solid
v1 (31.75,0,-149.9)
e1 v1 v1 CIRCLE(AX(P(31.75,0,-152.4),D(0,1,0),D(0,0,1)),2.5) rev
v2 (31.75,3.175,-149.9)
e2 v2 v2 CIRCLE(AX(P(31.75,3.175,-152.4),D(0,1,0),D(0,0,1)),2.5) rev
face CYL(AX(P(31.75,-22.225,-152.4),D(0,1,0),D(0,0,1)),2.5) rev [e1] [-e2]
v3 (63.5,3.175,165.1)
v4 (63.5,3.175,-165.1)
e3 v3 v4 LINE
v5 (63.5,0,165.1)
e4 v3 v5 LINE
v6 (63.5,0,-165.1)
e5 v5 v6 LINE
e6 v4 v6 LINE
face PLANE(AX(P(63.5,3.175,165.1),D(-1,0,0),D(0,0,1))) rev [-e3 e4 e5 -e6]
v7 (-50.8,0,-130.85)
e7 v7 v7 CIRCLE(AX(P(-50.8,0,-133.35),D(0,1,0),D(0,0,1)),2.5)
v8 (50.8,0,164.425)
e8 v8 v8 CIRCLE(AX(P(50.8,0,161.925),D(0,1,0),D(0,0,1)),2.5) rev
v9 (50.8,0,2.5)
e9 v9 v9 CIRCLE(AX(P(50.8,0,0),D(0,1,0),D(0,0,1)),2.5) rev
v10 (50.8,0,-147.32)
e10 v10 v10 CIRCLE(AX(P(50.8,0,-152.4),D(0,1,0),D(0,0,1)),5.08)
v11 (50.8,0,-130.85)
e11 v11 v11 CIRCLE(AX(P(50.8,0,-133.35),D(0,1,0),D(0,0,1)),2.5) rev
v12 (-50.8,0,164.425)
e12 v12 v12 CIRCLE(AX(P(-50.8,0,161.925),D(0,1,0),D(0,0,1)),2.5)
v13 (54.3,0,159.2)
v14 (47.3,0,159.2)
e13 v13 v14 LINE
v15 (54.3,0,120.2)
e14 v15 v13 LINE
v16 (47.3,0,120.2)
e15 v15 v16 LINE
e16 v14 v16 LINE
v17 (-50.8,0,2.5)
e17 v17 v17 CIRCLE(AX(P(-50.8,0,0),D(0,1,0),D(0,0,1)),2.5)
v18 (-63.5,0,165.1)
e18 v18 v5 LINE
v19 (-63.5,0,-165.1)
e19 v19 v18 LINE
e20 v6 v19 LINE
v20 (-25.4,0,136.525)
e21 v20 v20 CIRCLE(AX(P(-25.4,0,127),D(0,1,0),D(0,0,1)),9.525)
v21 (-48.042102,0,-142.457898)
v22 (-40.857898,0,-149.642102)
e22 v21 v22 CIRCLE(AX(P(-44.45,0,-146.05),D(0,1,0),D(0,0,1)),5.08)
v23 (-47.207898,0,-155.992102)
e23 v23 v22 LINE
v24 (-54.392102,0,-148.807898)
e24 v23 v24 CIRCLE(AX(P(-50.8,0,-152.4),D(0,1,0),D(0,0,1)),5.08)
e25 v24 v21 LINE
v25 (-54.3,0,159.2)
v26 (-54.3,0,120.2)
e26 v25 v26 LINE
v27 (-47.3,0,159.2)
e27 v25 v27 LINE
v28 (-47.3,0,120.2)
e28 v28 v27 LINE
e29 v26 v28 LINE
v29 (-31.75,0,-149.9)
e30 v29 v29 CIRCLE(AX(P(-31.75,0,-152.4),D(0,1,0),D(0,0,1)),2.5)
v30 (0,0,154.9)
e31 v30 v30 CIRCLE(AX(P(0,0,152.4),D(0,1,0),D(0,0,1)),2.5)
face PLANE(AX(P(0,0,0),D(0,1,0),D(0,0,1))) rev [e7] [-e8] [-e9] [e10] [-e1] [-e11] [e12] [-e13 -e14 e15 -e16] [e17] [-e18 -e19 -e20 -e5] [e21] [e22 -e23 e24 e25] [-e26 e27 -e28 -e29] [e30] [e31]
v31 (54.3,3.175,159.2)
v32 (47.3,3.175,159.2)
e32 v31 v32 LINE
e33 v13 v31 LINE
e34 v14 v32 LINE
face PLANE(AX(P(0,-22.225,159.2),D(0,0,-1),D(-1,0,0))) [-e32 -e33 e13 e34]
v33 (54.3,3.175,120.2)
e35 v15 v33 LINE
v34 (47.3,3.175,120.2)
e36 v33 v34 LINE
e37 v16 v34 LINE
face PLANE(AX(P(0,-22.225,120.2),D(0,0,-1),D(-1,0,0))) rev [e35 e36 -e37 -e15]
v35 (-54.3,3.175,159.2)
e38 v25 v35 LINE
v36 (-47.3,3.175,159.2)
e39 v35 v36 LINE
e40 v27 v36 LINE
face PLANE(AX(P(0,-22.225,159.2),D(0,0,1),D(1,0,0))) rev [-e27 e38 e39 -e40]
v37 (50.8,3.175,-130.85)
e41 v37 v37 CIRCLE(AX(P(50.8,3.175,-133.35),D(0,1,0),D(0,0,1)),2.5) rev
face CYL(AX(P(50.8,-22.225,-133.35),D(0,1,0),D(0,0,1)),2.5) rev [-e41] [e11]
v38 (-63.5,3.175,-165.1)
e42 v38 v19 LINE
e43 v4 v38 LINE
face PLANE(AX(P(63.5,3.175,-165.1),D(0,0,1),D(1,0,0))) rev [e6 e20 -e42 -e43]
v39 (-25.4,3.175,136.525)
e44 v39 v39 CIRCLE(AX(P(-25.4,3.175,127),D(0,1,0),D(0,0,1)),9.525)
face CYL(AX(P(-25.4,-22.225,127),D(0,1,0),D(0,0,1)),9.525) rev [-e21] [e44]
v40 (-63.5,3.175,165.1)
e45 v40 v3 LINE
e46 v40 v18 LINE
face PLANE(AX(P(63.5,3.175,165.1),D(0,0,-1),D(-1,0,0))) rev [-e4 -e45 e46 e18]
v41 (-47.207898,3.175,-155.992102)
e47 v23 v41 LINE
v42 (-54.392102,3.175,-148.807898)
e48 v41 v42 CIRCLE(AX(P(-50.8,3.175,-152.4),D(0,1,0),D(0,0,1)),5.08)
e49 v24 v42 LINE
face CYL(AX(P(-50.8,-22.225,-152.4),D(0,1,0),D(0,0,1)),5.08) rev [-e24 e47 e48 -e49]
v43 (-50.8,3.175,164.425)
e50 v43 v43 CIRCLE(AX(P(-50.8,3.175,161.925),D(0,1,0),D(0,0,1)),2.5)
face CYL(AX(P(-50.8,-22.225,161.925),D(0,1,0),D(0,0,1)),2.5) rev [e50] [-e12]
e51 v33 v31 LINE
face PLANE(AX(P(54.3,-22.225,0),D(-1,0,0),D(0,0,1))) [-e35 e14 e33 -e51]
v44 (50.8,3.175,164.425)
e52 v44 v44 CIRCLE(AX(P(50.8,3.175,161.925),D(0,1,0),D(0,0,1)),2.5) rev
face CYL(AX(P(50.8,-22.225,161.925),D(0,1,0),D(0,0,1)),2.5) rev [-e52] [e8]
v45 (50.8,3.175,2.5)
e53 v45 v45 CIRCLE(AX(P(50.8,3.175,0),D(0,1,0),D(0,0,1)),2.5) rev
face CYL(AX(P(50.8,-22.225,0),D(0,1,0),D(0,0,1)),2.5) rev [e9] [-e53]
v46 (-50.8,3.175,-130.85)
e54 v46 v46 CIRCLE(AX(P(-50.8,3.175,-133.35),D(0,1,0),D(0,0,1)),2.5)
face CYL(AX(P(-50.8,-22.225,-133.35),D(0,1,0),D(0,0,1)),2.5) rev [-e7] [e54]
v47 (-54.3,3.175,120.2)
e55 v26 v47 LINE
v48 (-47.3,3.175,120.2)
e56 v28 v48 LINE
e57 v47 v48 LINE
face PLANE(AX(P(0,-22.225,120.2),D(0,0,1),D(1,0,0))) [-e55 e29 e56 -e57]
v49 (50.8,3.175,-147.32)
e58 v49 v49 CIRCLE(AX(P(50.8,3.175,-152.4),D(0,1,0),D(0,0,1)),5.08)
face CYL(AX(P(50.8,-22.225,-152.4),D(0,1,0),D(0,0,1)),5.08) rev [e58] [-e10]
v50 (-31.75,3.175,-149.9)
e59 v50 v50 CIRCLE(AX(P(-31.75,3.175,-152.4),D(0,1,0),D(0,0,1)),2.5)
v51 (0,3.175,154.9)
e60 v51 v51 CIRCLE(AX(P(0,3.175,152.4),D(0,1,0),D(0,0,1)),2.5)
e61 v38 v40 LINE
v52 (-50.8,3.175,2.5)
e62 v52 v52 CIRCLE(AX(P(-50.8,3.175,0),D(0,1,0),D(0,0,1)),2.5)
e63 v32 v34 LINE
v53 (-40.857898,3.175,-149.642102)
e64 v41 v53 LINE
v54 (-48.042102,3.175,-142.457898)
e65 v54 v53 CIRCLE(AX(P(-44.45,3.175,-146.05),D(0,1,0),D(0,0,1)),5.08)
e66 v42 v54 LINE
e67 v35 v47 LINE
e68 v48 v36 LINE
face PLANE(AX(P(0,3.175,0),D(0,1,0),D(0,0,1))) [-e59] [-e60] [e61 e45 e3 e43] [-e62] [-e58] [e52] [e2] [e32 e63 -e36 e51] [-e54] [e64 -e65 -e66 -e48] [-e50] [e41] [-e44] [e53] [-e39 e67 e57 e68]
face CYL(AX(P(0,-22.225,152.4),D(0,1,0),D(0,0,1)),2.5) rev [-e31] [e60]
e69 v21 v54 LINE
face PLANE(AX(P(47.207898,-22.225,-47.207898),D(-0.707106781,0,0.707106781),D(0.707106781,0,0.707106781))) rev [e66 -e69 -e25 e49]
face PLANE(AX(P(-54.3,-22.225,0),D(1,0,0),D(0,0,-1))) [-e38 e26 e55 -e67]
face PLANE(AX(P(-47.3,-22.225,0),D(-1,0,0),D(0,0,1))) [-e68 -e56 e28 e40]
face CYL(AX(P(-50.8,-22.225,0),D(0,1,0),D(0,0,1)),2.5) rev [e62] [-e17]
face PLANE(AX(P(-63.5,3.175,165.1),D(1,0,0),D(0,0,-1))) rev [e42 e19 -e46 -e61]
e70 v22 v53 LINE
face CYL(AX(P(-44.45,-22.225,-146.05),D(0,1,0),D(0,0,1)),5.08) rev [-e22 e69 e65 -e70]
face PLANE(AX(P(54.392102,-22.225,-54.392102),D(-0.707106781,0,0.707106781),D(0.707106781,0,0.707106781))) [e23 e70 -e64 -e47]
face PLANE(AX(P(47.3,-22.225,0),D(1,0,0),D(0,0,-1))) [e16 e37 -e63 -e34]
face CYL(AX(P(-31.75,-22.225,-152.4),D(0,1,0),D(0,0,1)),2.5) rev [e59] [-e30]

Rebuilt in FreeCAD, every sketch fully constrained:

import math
import FreeCAD as App
import Part
import Sketcher
from FreeCAD import Vector
Q = App.Units.Quantity


def add_polygon(sketch, points):
    """Adds a closed chain of lines whose ends are joined by coincident constraints."""
    first, n = sketch.GeometryCount, len(points)
    for a, b in zip(points, points[1:] + points[:1]):
        sketch.addGeometry(Part.LineSegment(App.Vector(*a, 0), App.Vector(*b, 0)), False)
    for i in range(n):
        sketch.addConstraint(Sketcher.Constraint("Coincident", first + i, 2, first + (i + 1) % n, 1))

doc = App.newDocument("Part")
params = doc.addObject("Spreadsheet::Sheet", "Params")
for row, (alias, value) in enumerate([
    ("sketch1_width", "5 in"),
    ("sketch1_height", "13 in"),
    ("pad1_length", "0.125 in"),
    ("sketch2_diameter", "0.4 in"),
    ("pocket1_length", "1 in"),
    ("sketch3_diameter", "0.75 in"),
    ("pocket2_length", "1 in"),
], start=1):
    params.set(f"A{row}", alias)
    params.set(f"B{row}", "=" + value)
    params.setAlias(f"B{row}", alias)

body = doc.addObject("PartDesign::Body", "Body")

# Sketch on XZ plane
sketch1 = body.newObject("Sketcher::SketchObject", "Sketch")
sketch1.AttachmentSupport = (doc.getObject("XZ_Plane"), [""])
sketch1.MapMode = "FlatFace"
add_polygon(sketch1, [(-63.5, -165.1), (-63.5, 165.1), (63.5, 165.1), (63.5, -165.1)])  # lines 0-3
sketch1.addConstraint([
    Sketcher.Constraint("Vertical", 0),
    Sketcher.Constraint("Horizontal", 1),
    Sketcher.Constraint("Vertical", 2),
    Sketcher.Constraint("Horizontal", 3),
    Sketcher.Constraint("Symmetric", 0, 2, 2, 2, -1, 1),
    Sketcher.Constraint("DistanceX", 1, 1, 1, 2, Q("5 in")),
    Sketcher.Constraint("DistanceY", 0, 1, 0, 2, Q("13 in")),
])
sketch1.setExpression("Constraints[9]", "Params.sketch1_width")
sketch1.setExpression("Constraints[10]", "Params.sketch1_height")
pad1 = body.newObject("PartDesign::Pad", "Pad")
pad1.Profile = sketch1
pad1.setExpression("Length", "Params.pad1_length")
pad1.Reversed = True

# Sketch on XZ plane
sketch2 = body.newObject("Sketcher::SketchObject", "Sketch001")
sketch2.AttachmentSupport = (doc.getObject("XZ_Plane"), [""])
sketch2.MapMode = "FlatFace"
sketch2.AttachmentOffset = App.Placement(Vector(0, 0, -0.125 * 25.4), App.Rotation())
sketch2.addGeometry([
    Part.Circle(Vector(50.8, -152.4, 0), Vector(0, 0, 1), 5.08),  # 0
    Part.Circle(Vector(-31.75, -152.4, 0), Vector(0, 0, 1), 2.5),  # 1
    Part.Circle(Vector(31.75, -152.4, 0), Vector(0, 0, 1), 2.5),  # 2
    Part.Circle(Vector(-50.8, -133.35, 0), Vector(0, 0, 1), 2.5),  # 3
    Part.Circle(Vector(50.8, -133.35, 0), Vector(0, 0, 1), 2.5),  # 4
    Part.Circle(Vector(-50.8, 161.925, 0), Vector(0, 0, 1), 2.5),  # 5
    Part.Circle(Vector(50.8, 161.925, 0), Vector(0, 0, 1), 2.5),  # 6
    Part.Circle(Vector(-50.8, 0, 0), Vector(0, 0, 1), 2.5),  # 7
    Part.Circle(Vector(50.8, 0, 0), Vector(0, 0, 1), 2.5),  # 8
    Part.Circle(Vector(0, 152.4, 0), Vector(0, 0, 1), 2.5),  # 9
    Part.LineSegment(Vector(-54.392102, -148.807898, 0), Vector(-48.042102, -142.457898, 0)),  # 10
    Part.ArcOfCircle(Part.Circle(Vector(-44.45, -146.05, 0), Vector(0, 0, 1), 5.08), math.radians(-45), math.radians(135)),  # 11
    Part.LineSegment(Vector(-40.857898, -149.642102, 0), Vector(-47.207898, -155.992102, 0)),  # 12
    Part.ArcOfCircle(Part.Circle(Vector(-50.8, -152.4, 0), Vector(0, 0, 1), 5.08), math.radians(135), math.radians(315)),  # 13
], False)
sketch2.addConstraint([
    Sketcher.Constraint("Tangent", 10, 2, 11, 2),
    Sketcher.Constraint("Tangent", 11, 1, 12, 1),
    Sketcher.Constraint("Tangent", 12, 2, 13, 2),
    Sketcher.Constraint("Tangent", 13, 1, 10, 1),
    Sketcher.Constraint("Equal", 1, 2),
    Sketcher.Constraint("Equal", 2, 3),
    Sketcher.Constraint("Equal", 3, 4),
    Sketcher.Constraint("Equal", 4, 5),
    Sketcher.Constraint("Equal", 5, 6),
    Sketcher.Constraint("Equal", 6, 7),
    Sketcher.Constraint("Equal", 7, 8),
    Sketcher.Constraint("Equal", 8, 9),
    Sketcher.Constraint("Equal", 0, 11),
    Sketcher.Constraint("Equal", 11, 13),
    Sketcher.Constraint("Symmetric", 7, 3, 8, 3, -1, 1),
    Sketcher.Constraint("Symmetric", 1, 3, 2, 3, -2),
    Sketcher.Constraint("Symmetric", 3, 3, 4, 3, -2),
    Sketcher.Constraint("Symmetric", 5, 3, 6, 3, -2),
    Sketcher.Constraint("Symmetric", 0, 3, 13, 3, -2),
    Sketcher.Constraint("PointOnObject", 7, 3, -1),
    Sketcher.Constraint("PointOnObject", 9, 3, -2),
    Sketcher.Constraint("Horizontal", 0, 3, 1, 3),
    Sketcher.Constraint("Vertical", 0, 3, 4, 3),
    Sketcher.Constraint("Vertical", 3, 3, 5, 3),
    Sketcher.Constraint("Vertical", 5, 3, 7, 3),
    Sketcher.Constraint("Diameter", 0, Q("0.4 in")),
    Sketcher.Constraint("DistanceX", -1, 1, 0, 3, Q("2 in")),
    Sketcher.Constraint("DistanceY", 0, 3, -1, 1, Q("6 in")),
    Sketcher.Constraint("DistanceY", -1, 1, 9, 3, Q("6 in")),
    Sketcher.Constraint("Angle", 10, Q("45 deg")),
    Sketcher.Constraint("DistanceX", 11, 3, 2, 3, Q("3 in")),
    Sketcher.Constraint("DistanceX", 1, 3, 2, 3, Q("2.5 in")),
    Sketcher.Constraint("DistanceY", 11, 3, 3, 3, Q("0.5 in")),
    Sketcher.Constraint("Diameter", 1, 5.0),
    Sketcher.Constraint("DistanceY", -1, 1, 5, 3, Q("6.375 in")),
])
sketch2.setExpression("Constraints[25]", "Params.sketch2_diameter")
pocket1 = body.newObject("PartDesign::Pocket", "Pocket")
pocket1.Profile = sketch2
pocket1.setExpression("Length", "Params.pocket1_length")
pocket1.Reversed = True

# Sketch on XZ plane
sketch3 = body.newObject("Sketcher::SketchObject", "Sketch002")
sketch3.AttachmentSupport = (doc.getObject("XZ_Plane"), [""])
sketch3.MapMode = "FlatFace"
sketch3.AttachmentOffset = App.Placement(Vector(0, 0, -0.125 * 25.4), App.Rotation())
sketch3.addGeometry(Part.Circle(Vector(-50.8, 161.925, 0), Vector(0, 0, 1), 2.5), False)  # 0
add_polygon(sketch3, [(-54.3, 120.2), (-54.3, 159.2), (-47.3, 159.2), (-47.3, 120.2)])  # lines 1-4
sketch3.addGeometry(Part.Circle(Vector(-25.4, 127, 0), Vector(0, 0, 1), 9.525), False)  # 5
add_polygon(sketch3, [(54.3, 159.2), (54.3, 120.2), (47.3, 120.2), (47.3, 159.2)])  # lines 6-9
sketch3.addConstraint([
    Sketcher.Constraint("Vertical", 1),
    Sketcher.Constraint("Horizontal", 2),
    Sketcher.Constraint("Vertical", 3),
    Sketcher.Constraint("Horizontal", 4),
    Sketcher.Constraint("Vertical", 6),
    Sketcher.Constraint("Horizontal", 7),
    Sketcher.Constraint("Vertical", 8),
    Sketcher.Constraint("Horizontal", 9),
    Sketcher.Constraint("Symmetric", 4, 2, 6, 2, -2),
    Sketcher.Constraint("Symmetric", 2, 2, 8, 2, -2),
    Sketcher.Constraint("Diameter", 5, Q("0.75 in")),
    Sketcher.Constraint("DistanceX", 0, 3, -1, 1, Q("2 in")),
    Sketcher.Constraint("DistanceX", 5, 3, -1, 1, Q("1 in")),
    Sketcher.Constraint("DistanceY", -1, 1, 5, 3, Q("5 in")),
    Sketcher.Constraint("DistanceX", 3, 2, 6, 2, Q("4 in")),
    Sketcher.Constraint("Diameter", 0, 5.0),
    Sketcher.Constraint("DistanceY", -1, 1, 0, 3, Q("6.375 in")),
    Sketcher.Constraint("DistanceX", 2, 1, 2, 2, 7.0),
    Sketcher.Constraint("DistanceY", 1, 1, 1, 2, 39.0),
    Sketcher.Constraint("DistanceY", -1, 1, 1, 2, 159.2),
])
sketch3.setExpression("Constraints[18]", "Params.sketch3_diameter")
pocket2 = body.newObject("PartDesign::Pocket", "Pocket001")
pocket2.Profile = sketch3
pocket2.setExpression("Length", "Params.pocket2_length")
pocket2.Reversed = True

doc.recompute()
